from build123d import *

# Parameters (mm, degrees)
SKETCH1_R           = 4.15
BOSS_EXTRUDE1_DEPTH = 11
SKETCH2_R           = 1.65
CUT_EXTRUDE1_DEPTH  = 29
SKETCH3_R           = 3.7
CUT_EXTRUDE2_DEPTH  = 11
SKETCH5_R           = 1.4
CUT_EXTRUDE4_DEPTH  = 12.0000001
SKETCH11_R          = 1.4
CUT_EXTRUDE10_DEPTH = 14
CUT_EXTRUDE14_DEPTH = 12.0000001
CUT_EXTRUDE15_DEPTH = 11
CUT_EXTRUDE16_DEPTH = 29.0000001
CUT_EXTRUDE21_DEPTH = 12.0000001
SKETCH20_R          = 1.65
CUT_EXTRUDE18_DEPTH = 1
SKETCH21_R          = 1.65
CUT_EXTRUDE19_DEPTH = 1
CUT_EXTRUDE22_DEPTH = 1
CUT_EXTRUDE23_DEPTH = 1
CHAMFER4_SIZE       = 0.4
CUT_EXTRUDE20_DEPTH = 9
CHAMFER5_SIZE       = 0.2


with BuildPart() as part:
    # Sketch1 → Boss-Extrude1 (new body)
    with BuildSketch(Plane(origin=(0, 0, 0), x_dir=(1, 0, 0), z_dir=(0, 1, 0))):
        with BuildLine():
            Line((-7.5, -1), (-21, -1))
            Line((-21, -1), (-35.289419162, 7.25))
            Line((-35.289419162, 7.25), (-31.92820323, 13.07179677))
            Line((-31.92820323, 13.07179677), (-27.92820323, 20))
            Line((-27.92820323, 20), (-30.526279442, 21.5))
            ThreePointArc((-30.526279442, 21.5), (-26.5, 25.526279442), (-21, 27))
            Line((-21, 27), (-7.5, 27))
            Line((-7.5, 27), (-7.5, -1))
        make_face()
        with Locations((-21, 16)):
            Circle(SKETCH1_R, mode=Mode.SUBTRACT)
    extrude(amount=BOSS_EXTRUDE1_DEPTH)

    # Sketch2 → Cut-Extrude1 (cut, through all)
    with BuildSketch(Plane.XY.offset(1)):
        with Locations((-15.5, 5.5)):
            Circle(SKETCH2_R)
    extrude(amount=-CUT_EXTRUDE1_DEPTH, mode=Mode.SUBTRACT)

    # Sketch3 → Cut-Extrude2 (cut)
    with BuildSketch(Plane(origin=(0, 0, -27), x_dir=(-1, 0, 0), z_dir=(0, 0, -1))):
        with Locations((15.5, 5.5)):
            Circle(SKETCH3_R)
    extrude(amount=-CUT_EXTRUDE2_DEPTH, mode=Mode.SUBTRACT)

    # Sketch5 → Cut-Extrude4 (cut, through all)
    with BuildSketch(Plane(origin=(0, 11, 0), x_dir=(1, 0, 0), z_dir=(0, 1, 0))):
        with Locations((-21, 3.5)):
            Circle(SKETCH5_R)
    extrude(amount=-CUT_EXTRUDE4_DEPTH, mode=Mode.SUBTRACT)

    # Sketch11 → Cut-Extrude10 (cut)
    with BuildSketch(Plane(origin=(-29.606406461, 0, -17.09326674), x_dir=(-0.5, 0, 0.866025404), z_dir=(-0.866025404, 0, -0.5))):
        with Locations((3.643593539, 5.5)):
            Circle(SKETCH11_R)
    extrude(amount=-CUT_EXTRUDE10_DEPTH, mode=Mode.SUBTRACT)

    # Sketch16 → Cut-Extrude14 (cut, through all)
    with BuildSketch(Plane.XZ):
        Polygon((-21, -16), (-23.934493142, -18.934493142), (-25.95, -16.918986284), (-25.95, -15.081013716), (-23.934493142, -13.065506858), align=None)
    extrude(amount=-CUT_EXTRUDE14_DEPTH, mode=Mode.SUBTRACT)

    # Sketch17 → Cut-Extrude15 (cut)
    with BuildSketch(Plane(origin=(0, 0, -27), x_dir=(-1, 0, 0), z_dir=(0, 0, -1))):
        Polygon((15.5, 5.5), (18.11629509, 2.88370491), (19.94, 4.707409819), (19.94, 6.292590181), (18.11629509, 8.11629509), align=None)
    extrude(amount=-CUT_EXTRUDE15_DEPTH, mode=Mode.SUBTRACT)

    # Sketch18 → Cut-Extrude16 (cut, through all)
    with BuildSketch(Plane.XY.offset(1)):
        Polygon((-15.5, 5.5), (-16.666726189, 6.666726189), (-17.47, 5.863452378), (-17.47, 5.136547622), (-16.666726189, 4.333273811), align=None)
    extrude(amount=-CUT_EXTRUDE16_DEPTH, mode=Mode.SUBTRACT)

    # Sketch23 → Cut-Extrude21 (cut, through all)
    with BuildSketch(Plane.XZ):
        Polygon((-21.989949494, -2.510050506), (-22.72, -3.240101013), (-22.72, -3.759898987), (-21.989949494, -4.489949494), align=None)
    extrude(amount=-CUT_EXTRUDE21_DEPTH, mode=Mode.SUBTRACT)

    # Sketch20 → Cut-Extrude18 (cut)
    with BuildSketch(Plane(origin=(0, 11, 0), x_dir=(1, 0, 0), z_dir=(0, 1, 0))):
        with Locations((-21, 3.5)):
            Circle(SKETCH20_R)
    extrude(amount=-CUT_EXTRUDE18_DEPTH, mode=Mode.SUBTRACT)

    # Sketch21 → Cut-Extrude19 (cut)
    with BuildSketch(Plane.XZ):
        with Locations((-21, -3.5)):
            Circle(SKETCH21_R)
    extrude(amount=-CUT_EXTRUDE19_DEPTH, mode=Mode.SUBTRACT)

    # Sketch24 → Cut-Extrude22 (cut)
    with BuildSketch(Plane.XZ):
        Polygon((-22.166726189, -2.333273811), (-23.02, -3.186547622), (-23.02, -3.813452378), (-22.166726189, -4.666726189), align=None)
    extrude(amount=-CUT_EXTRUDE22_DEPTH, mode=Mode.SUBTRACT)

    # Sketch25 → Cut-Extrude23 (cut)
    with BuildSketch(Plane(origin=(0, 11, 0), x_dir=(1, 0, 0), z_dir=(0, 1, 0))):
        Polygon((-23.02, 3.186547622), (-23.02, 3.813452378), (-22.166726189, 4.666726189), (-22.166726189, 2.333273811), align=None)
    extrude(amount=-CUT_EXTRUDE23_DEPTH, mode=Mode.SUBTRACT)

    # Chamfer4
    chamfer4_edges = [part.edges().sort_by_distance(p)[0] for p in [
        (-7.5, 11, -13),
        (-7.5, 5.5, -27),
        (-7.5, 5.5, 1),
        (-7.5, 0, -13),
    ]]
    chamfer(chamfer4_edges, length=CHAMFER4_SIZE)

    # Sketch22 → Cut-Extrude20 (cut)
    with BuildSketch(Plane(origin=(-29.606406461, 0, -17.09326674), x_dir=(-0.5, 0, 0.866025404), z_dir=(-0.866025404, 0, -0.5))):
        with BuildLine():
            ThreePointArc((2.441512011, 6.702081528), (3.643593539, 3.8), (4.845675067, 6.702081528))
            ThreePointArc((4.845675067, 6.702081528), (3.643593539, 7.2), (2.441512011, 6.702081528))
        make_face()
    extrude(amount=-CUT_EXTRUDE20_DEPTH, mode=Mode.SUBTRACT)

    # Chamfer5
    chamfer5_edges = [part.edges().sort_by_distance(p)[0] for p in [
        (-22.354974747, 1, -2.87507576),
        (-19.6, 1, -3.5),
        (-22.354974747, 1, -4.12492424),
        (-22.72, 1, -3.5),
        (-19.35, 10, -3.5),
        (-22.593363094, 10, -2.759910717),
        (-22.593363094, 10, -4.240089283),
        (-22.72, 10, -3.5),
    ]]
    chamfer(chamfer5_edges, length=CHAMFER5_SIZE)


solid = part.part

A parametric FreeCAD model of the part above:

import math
import FreeCAD as App
import Part
import Sketcher
from FreeCAD import Vector
Q = App.Units.Quantity


def edges_at(feature, points):
    """Names of the edges that pass closest to the given points."""
    edges = feature.Shape.Edges
    near = lambda p: min(range(len(edges)), key=lambda i: edges[i].distToShape(Part.Vertex(*p))[0])
    return sorted({f"Edge{near(p) + 1}" for p in points})

doc = App.newDocument("Part")
body = doc.addObject("PartDesign::Body", "Body")

# Sketch on XZ plane
sketch1 = doc.addObject("Sketcher::SketchObject", "Sketch")
body.addObject(sketch1)
sketch1.AttachmentSupport = (doc.XZ_Plane, [""])
sketch1.MapMode = "FlatFace"
sketch1.addGeometry([
    Part.LineSegment(Vector(-21, 1, 0), Vector(-7.5, 1, 0)),  # 0
    Part.LineSegment(Vector(-7.5, 1, 0), Vector(-7.5, -27, 0)),  # 1
    Part.LineSegment(Vector(-7.5, -27, 0), Vector(-21, -27, 0)),  # 2
    Part.ArcOfCircle(Part.Circle(Vector(-21, -16, 0), Vector(0, 0, 1), 11), math.radians(-150), math.radians(-90)),  # 3
    Part.LineSegment(Vector(-30.5, -21.5, 0), Vector(-27.9, -20, 0)),  # 4
    Part.LineSegment(Vector(-27.9, -20, 0), Vector(-31.9, -13.1, 0)),  # 5
    Part.LineSegment(Vector(-31.9, -13.1, 0), Vector(-35.3, -7.2, 0)),  # 6
    Part.LineSegment(Vector(-35.3, -7.2, 0), Vector(-21, 1, 0)),  # 7
    Part.Circle(Vector(-21, -16, 0), Vector(0, 0, 1), 4.2),  # 8
], False)
sketch1.addConstraint([
    Sketcher.Constraint("Coincident", 0, 2, 1, 1),
    Sketcher.Constraint("Coincident", 1, 2, 2, 1),
    Sketcher.Constraint("Tangent", 2, 2, 3, 2),
    Sketcher.Constraint("Coincident", 3, 1, 4, 1),
    Sketcher.Constraint("Coincident", 4, 2, 5, 1),
    Sketcher.Constraint("Coincident", 5, 2, 6, 1),
    Sketcher.Constraint("Coincident", 6, 2, 7, 1),
    Sketcher.Constraint("Coincident", 7, 2, 0, 1),
    Sketcher.Constraint("Horizontal", 0),
    Sketcher.Constraint("Vertical", 1),
    Sketcher.Constraint("Horizontal", 2),
    Sketcher.Constraint("Coincident", 8, 3, 3, 3),
    Sketcher.Constraint("Perpendicular", 4, 5),
    Sketcher.Constraint("Parallel", 5, 6),
    Sketcher.Constraint("Perpendicular", 6, 7),
    Sketcher.Constraint("Vertical", 2, 2, 7, 2),
    Sketcher.Constraint("Radius", 3, Q("11 mm")),
    Sketcher.Constraint("Diameter", 8, Q("8.3 mm")),
    Sketcher.Constraint("DistanceY", 1, 2, 1, 1, Q("28 mm")),
    Sketcher.Constraint("Angle", 4, Q("30 deg")),
    Sketcher.Constraint("Distance", 4, Q("3 mm")),
    Sketcher.Constraint("Distance", 5, Q("8 mm")),
    Sketcher.Constraint("DistanceX", 0, 1, 0, 2, Q("13.5 mm")),
    Sketcher.Constraint("DistanceX", 3, 3, -1, 1, Q("21 mm")),
    Sketcher.Constraint("DistanceY", 3, 3, -1, 1, Q("16 mm")),
    Sketcher.Constraint("DistanceY", 4, 2, -1, 1, Q("20 mm")),
])
pad1 = doc.addObject("PartDesign::Pad", "Pad")
body.addObject(pad1)
pad1.Profile = sketch1
pad1.Length = 11
pad1.Reversed = True

# Sketch on XY plane
sketch2 = doc.addObject("Sketcher::SketchObject", "Sketch001")
body.addObject(sketch2)
sketch2.AttachmentSupport = (doc.XY_Plane, [""])
sketch2.MapMode = "FlatFace"
sketch2.AttachmentOffset = App.Placement(Vector(0, 0, 1), App.Rotation())
sketch2.addGeometry(Part.Circle(Vector(-15.5, 5.5, 0), Vector(0, 0, 1), 1.6), False)
sketch2.addConstraint([
    Sketcher.Constraint("Diameter", 0, Q("3.3 mm")),
    Sketcher.Constraint("DistanceX", 0, 3, -1, 1, Q("15.5 mm")),
    Sketcher.Constraint("DistanceY", -1, 1, 0, 3, Q("5.5 mm")),
])
pocket1 = doc.addObject("PartDesign::Pocket", "Pocket")
body.addObject(pocket1)
pocket1.Profile = sketch2
pocket1.Type = "ThroughAll"

# Sketch on XY plane
sketch3 = doc.addObject("Sketcher::SketchObject", "Sketch002")
body.addObject(sketch3)
sketch3.AttachmentSupport = (doc.XY_Plane, [""])
sketch3.MapMode = "FlatFace"
sketch3.AttachmentOffset = App.Placement(Vector(0, 0, -27), App.Rotation())
sketch3.addGeometry(Part.Circle(Vector(-15.5, 5.5, 0), Vector(0, 0, 1), 3.7), False)
sketch3.addConstraint([
    Sketcher.Constraint("Diameter", 0, Q("7.4 mm")),
    Sketcher.Constraint("DistanceX", 0, 3, -1, 1, Q("15.5 mm")),
    Sketcher.Constraint("DistanceY", -1, 1, 0, 3, Q("5.5 mm")),
])
pocket2 = doc.addObject("PartDesign::Pocket", "Pocket001")
body.addObject(pocket2)
pocket2.Profile = sketch3
pocket2.Length = 11
pocket2.Reversed = True

# Sketch on XZ plane
sketch4 = doc.addObject("Sketcher::SketchObject", "Sketch003")
body.addObject(sketch4)
sketch4.AttachmentSupport = (doc.XZ_Plane, [""])
sketch4.MapMode = "FlatFace"
sketch4.AttachmentOffset = App.Placement(Vector(0, 0, -11), App.Rotation())
sketch4.addGeometry(Part.Circle(Vector(-21, -3.5, 0), Vector(0, 0, 1), 1.4), False)
sketch4.addConstraint([
    Sketcher.Constraint("Diameter", 0, Q("2.8 mm")),
    Sketcher.Constraint("DistanceX", 0, 3, -1, 1, Q("21 mm")),
    Sketcher.Constraint("DistanceY", 0, 3, -1, 1, Q("3.5 mm")),
])
pocket3 = doc.addObject("PartDesign::Pocket", "Pocket002")
body.addObject(pocket3)
pocket3.Profile = sketch4
pocket3.Type = "ThroughAll"
pocket3.Reversed = True

# Sketch on an angled plane
sketch5 = doc.addObject("Sketcher::SketchObject", "Sketch004")
body.addObject(sketch5)
sketch5.Placement = App.Placement(Vector(-29.606406, 0, -17.093267), App.Rotation(Vector(-0.5, 0, 0.866025404), Vector(0, 1, 0), Vector(-0.866025404, 0, -0.5), "ZXY"))
sketch5.addGeometry(Part.Circle(Vector(3.6, 5.5, 0), Vector(0, 0, 1), 1.4), False)
sketch5.addConstraint([
    Sketcher.Constraint("Diameter", 0, Q("2.8 mm")),
    Sketcher.Constraint("DistanceY", -1, 1, 0, 3, Q("5.5 mm")),
    Sketcher.Constraint("DistanceX", -1, 1, 0, 3, Q("3.643594 mm")),
])
pocket4 = doc.addObject("PartDesign::Pocket", "Pocket003")
body.addObject(pocket4)
pocket4.Profile = sketch5
pocket4.Length = 14

# Sketch on XZ plane
sketch6 = doc.addObject("Sketcher::SketchObject", "Sketch005")
body.addObject(sketch6)
sketch6.AttachmentSupport = (doc.XZ_Plane, [""])
sketch6.MapMode = "FlatFace"
sketch6.addGeometry([
    Part.LineSegment(Vector(-23.9, -18.9, 0), Vector(-21, -16, 0)),  # 0
    Part.LineSegment(Vector(-21, -16, 0), Vector(-23.9, -13.1, 0)),  # 1
    Part.LineSegment(Vector(-23.9, -13.1, 0), Vector(-25.9, -15.1, 0)),  # 2
    Part.LineSegment(Vector(-25.9, -15.1, 0), Vector(-25.9, -16.9, 0)),  # 3
    Part.LineSegment(Vector(-25.9, -16.9, 0), Vector(-23.9, -18.9, 0)),  # 4
], False)
sketch6.addConstraint([
    Sketcher.Constraint("Coincident", 0, 2, 1, 1),
    Sketcher.Constraint("Coincident", 1, 2, 2, 1),
    Sketcher.Constraint("Coincident", 2, 2, 3, 1),
    Sketcher.Constraint("Coincident", 3, 2, 4, 1),
    Sketcher.Constraint("Coincident", 4, 2, 0, 1),
    Sketcher.Constraint("Vertical", 3),
    Sketcher.Constraint("Perpendicular", 0, 1),
    Sketcher.Constraint("Perpendicular", 1, 2),
    Sketcher.Constraint("Perpendicular", 2, 4),
    Sketcher.Constraint("Vertical", 1, 2, 4, 2),
    Sketcher.Constraint("Equal", 0, 1),
    Sketcher.Constraint("DistanceX", 0, 2, -1, 1, Q("21 mm")),
    Sketcher.Constraint("DistanceY", 0, 2, -1, 1, Q("16 mm")),
    Sketcher.Constraint("Distance", 0, Q("4.15 mm")),
    Sketcher.Constraint("DistanceX", 2, 2, -1, 1, Q("25.95 mm")),
])
pocket5 = doc.addObject("PartDesign::Pocket", "Pocket004")
body.addObject(pocket5)
pocket5.Profile = sketch6
pocket5.Type = "ThroughAll"

# Sketch on XY plane
sketch7 = doc.addObject("Sketcher::SketchObject", "Sketch006")
body.addObject(sketch7)
sketch7.AttachmentSupport = (doc.XY_Plane, [""])
sketch7.MapMode = "FlatFace"
sketch7.AttachmentOffset = App.Placement(Vector(0, 0, -27), App.Rotation())
sketch7.addGeometry([
    Part.LineSegment(Vector(-15.5, 5.5, 0), Vector(-18.1, 2.9, 0)),  # 0
    Part.LineSegment(Vector(-18.1, 2.9, 0), Vector(-19.9, 4.7, 0)),  # 1
    Part.LineSegment(Vector(-19.9, 4.7, 0), Vector(-19.9, 6.3, 0)),  # 2
    Part.LineSegment(Vector(-19.9, 6.3, 0), Vector(-18.1, 8.1, 0)),  # 3
    Part.LineSegment(Vector(-18.1, 8.1, 0), Vector(-15.5, 5.5, 0)),  # 4
], False)
sketch7.addConstraint([
    Sketcher.Constraint("Coincident", 0, 2, 1, 1),
    Sketcher.Constraint("Coincident", 1, 2, 2, 1),
    Sketcher.Constraint("Coincident", 2, 2, 3, 1),
    Sketcher.Constraint("Coincident", 3, 2, 4, 1),
    Sketcher.Constraint("Coincident", 4, 2, 0, 1),
    Sketcher.Constraint("Vertical", 2),
    Sketcher.Constraint("Perpendicular", 0, 1),
    Sketcher.Constraint("Perpendicular", 1, 3),
    Sketcher.Constraint("Perpendicular", 3, 4),
    Sketcher.Constraint("Vertical", 0, 2, 3, 2),
    Sketcher.Constraint("Equal", 1, 3),
    Sketcher.Constraint("Distance", 0, Q("3.7 mm")),
    Sketcher.Constraint("DistanceX", 4, 2, -1, 1, Q("15.5 mm")),
    Sketcher.Constraint("DistanceY", -1, 1, 4, 2, Q("5.5 mm")),
    Sketcher.Constraint("DistanceX", 1, 2, -1, 1, Q("19.94 mm")),
])
pocket6 = doc.addObject("PartDesign::Pocket", "Pocket005")
body.addObject(pocket6)
pocket6.Profile = sketch7
pocket6.Length = 11
pocket6.Reversed = True

# Sketch on XY plane
sketch8 = doc.addObject("Sketcher::SketchObject", "Sketch007")
body.addObject(sketch8)
sketch8.AttachmentSupport = (doc.XY_Plane, [""])
sketch8.MapMode = "FlatFace"
sketch8.AttachmentOffset = App.Placement(Vector(0, 0, 1), App.Rotation())
sketch8.addGeometry([
    Part.LineSegment(Vector(-15.5, 5.5, 0), Vector(-16.7, 6.7, 0)),  # 0
    Part.LineSegment(Vector(-16.7, 6.7, 0), Vector(-17.5, 5.9, 0)),  # 1
    Part.LineSegment(Vector(-17.5, 5.9, 0), Vector(-17.5, 5.1, 0)),  # 2
    Part.LineSegment(Vector(-17.5, 5.1, 0), Vector(-16.7, 4.3, 0)),  # 3
    Part.LineSegment(Vector(-16.7, 4.3, 0), Vector(-15.5, 5.5, 0)),  # 4
], False)
sketch8.addConstraint([
    Sketcher.Constraint("Coincident", 0, 2, 1, 1),
    Sketcher.Constraint("Coincident", 1, 2, 2, 1),
    Sketcher.Constraint("Coincident", 2, 2, 3, 1),
    Sketcher.Constraint("Coincident", 3, 2, 4, 1),
    Sketcher.Constraint("Coincident", 4, 2, 0, 1),
    Sketcher.Constraint("Vertical", 2),
    Sketcher.Constraint("Perpendicular", 0, 1),
    Sketcher.Constraint("Perpendicular", 1, 3),
    Sketcher.Constraint("Perpendicular", 3, 4),
    Sketcher.Constraint("Vertical", 0, 2, 3, 2),
    Sketcher.Constraint("Equal", 1, 3),
    Sketcher.Constraint("DistanceX", 4, 2, -1, 1, Q("15.5 mm")),
    Sketcher.Constraint("DistanceY", -1, 1, 4, 2, Q("5.5 mm")),
    Sketcher.Constraint("Distance", 0, Q("1.65 mm")),
    Sketcher.Constraint("DistanceX", 1, 2, -1, 1, Q("17.47 mm")),
])
pocket7 = doc.addObject("PartDesign::Pocket", "Pocket006")
body.addObject(pocket7)
pocket7.Profile = sketch8
pocket7.Type = "ThroughAll"

# Sketch on XZ plane
sketch9 = doc.addObject("Sketcher::SketchObject", "Sketch008")
body.addObject(sketch9)
sketch9.AttachmentSupport = (doc.XZ_Plane, [""])
sketch9.MapMode = "FlatFace"
sketch9.addGeometry([
    Part.LineSegment(Vector(-22, -2.5, 0), Vector(-22.7, -3.2, 0)),
    Part.LineSegment(Vector(-22.7, -3.2, 0), Vector(-22.7, -3.8, 0)),
    Part.LineSegment(Vector(-22.7, -3.8, 0), Vector(-22, -4.5, 0)),
    Part.LineSegment(Vector(-22, -4.5, 0), Vector(-22, -2.5, 0)),
], False)
sketch9.addConstraint([
    Sketcher.Constraint("Coincident", 0, 2, 1, 1),
    Sketcher.Constraint("Coincident", 1, 2, 2, 1),
    Sketcher.Constraint("Coincident", 2, 2, 3, 1),
    Sketcher.Constraint("Coincident", 3, 2, 0, 1),
    Sketcher.Constraint("Vertical", 1),
    Sketcher.Constraint("Vertical", 3),
    Sketcher.Constraint("Perpendicular", 0, 2),
    Sketcher.Constraint("Equal", 0, 2),
    Sketcher.Constraint("DistanceX", 0, 2, -1, 1, Q("22.72 mm")),
    Sketcher.Constraint("DistanceY", 3, 1, 3, 2, Q("1.979899 mm")),
    Sketcher.Constraint("DistanceY", 0, 2, -1, 1, Q("3.240101 mm")),
    Sketcher.Constraint("DistanceY", 1, 2, -1, 1, Q("3.759899 mm")),
])
pocket8 = doc.addObject("PartDesign::Pocket", "Pocket007")
body.addObject(pocket8)
pocket8.Profile = sketch9
pocket8.Type = "ThroughAll"

# Sketch on XZ plane
sketch10 = doc.addObject("Sketcher::SketchObject", "Sketch009")
body.addObject(sketch10)
sketch10.AttachmentSupport = (doc.XZ_Plane, [""])
sketch10.MapMode = "FlatFace"
sketch10.AttachmentOffset = App.Placement(Vector(0, 0, -11), App.Rotation())
sketch10.addGeometry(Part.Circle(Vector(-21, -3.5, 0), Vector(0, 0, 1), 1.6), False)
sketch10.addConstraint([
    Sketcher.Constraint("Diameter", 0, Q("3.3 mm")),
    Sketcher.Constraint("DistanceX", 0, 3, -1, 1, Q("21 mm")),
    Sketcher.Constraint("DistanceY", 0, 3, -1, 1, Q("3.5 mm")),
])
pocket9 = doc.addObject("PartDesign::Pocket", "Pocket008")
body.addObject(pocket9)
pocket9.Profile = sketch10
pocket9.Length = 1
pocket9.Reversed = True

# Sketch on XZ plane
sketch11 = doc.addObject("Sketcher::SketchObject", "Sketch010")
body.addObject(sketch11)
sketch11.AttachmentSupport = (doc.XZ_Plane, [""])
sketch11.MapMode = "FlatFace"
sketch11.addGeometry(Part.Circle(Vector(-21, -3.5, 0), Vector(0, 0, 1), 1.6), False)
sketch11.addConstraint([
    Sketcher.Constraint("Diameter", 0, Q("3.3 mm")),
    Sketcher.Constraint("DistanceX", 0, 3, -1, 1, Q("21 mm")),
    Sketcher.Constraint("DistanceY", 0, 3, -1, 1, Q("3.5 mm")),
])
pocket10 = doc.addObject("PartDesign::Pocket", "Pocket009")
body.addObject(pocket10)
pocket10.Profile = sketch11
pocket10.Length = 1

# Sketch on XZ plane
sketch12 = doc.addObject("Sketcher::SketchObject", "Sketch011")
body.addObject(sketch12)
sketch12.AttachmentSupport = (doc.XZ_Plane, [""])
sketch12.MapMode = "FlatFace"
sketch12.addGeometry([
    Part.LineSegment(Vector(-22.2, -2.3, 0), Vector(-23, -3.2, 0)),
    Part.LineSegment(Vector(-23, -3.2, 0), Vector(-23, -3.8, 0)),
    Part.LineSegment(Vector(-23, -3.8, 0), Vector(-22.2, -4.7, 0)),
    Part.LineSegment(Vector(-22.2, -4.7, 0), Vector(-22.2, -2.3, 0)),
], False)
sketch12.addConstraint([
    Sketcher.Constraint("Coincident", 0, 2, 1, 1),
    Sketcher.Constraint("Coincident", 1, 2, 2, 1),
    Sketcher.Constraint("Coincident", 2, 2, 3, 1),
    Sketcher.Constraint("Coincident", 3, 2, 0, 1),
    Sketcher.Constraint("Vertical", 1),
    Sketcher.Constraint("Vertical", 3),
    Sketcher.Constraint("Perpendicular", 0, 2),
    Sketcher.Constraint("Equal", 0, 2),
    Sketcher.Constraint("DistanceX", 0, 2, -1, 1, Q("23.02 mm")),
    Sketcher.Constraint("Distance", 0, Q("1.206711 mm")),
    Sketcher.Constraint("DistanceY", 1, 2, 1, 1, Q("0.626905 mm")),
    Sketcher.Constraint("DistanceY", 0, 2, -1, 1, Q("3.186548 mm")),
])
pocket11 = doc.addObject("PartDesign::Pocket", "Pocket010")
body.addObject(pocket11)
pocket11.Profile = sketch12
pocket11.Length = 1

# Sketch on XZ plane
sketch13 = doc.addObject("Sketcher::SketchObject", "Sketch012")
body.addObject(sketch13)
sketch13.AttachmentSupport = (doc.XZ_Plane, [""])
sketch13.MapMode = "FlatFace"
sketch13.AttachmentOffset = App.Placement(Vector(0, 0, -11), App.Rotation())
sketch13.addGeometry([
    Part.LineSegment(Vector(-23, -3.8, 0), Vector(-23, -3.2, 0)),
    Part.LineSegment(Vector(-23, -3.2, 0), Vector(-22.2, -2.3, 0)),
    Part.LineSegment(Vector(-22.2, -2.3, 0), Vector(-22.2, -4.7, 0)),
    Part.LineSegment(Vector(-22.2, -4.7, 0), Vector(-23, -3.8, 0)),
], False)
sketch13.addConstraint([
    Sketcher.Constraint("Coincident", 0, 2, 1, 1),
    Sketcher.Constraint("Coincident", 1, 2, 2, 1),
    Sketcher.Constraint("Coincident", 2, 2, 3, 1),
    Sketcher.Constraint("Coincident", 3, 2, 0, 1),
    Sketcher.Constraint("Vertical", 0),
    Sketcher.Constraint("Vertical", 2),
    Sketcher.Constraint("Perpendicular", 1, 3),
    Sketcher.Constraint("Equal", 1, 3),
    Sketcher.Constraint("DistanceX", 0, 2, -1, 1, Q("23.02 mm")),
    Sketcher.Constraint("Distance", 1, Q("1.206711 mm")),
    Sketcher.Constraint("DistanceY", 0, 1, 0, 2, Q("0.626905 mm")),
    Sketcher.Constraint("DistanceY", 0, 2, -1, 1, Q("3.186548 mm")),
])
pocket12 = doc.addObject("PartDesign::Pocket", "Pocket011")
body.addObject(pocket12)
pocket12.Profile = sketch13
pocket12.Length = 1
pocket12.Reversed = True
doc.recompute()

chamfer = doc.addObject("PartDesign::Chamfer", "Chamfer")
body.addObject(chamfer)
chamfer.Base = (pocket12, edges_at(pocket12, [
    (-7.5, 11, -13),
    (-7.5, 5.5, -27),
    (-7.5, 5.5, 1),
    (-7.5, 0, -13),
]))
chamfer.Size = 0.4

# Sketch on an angled plane
sketch14 = doc.addObject("Sketcher::SketchObject", "Sketch013")
body.addObject(sketch14)
sketch14.Placement = App.Placement(Vector(-29.606406, 0, -17.093267), App.Rotation(Vector(-0.5, 0, 0.866025404), Vector(0, 1, 0), Vector(-0.866025404, 0, -0.5), "ZXY"))
sketch14.addGeometry([
    Part.ArcOfCircle(Part.Circle(Vector(3.6, 5.5, 0), Vector(0, 0, 1), 1.7), math.radians(135), math.radians(405)),
    Part.ArcOfCircle(Part.Circle(Vector(3.6, 5.5, 0), Vector(0, 0, 1), 1.7), math.radians(45), math.radians(135)),
], False)
sketch14.addConstraint([
    Sketcher.Constraint("Tangent", 0, 1, 1, 2),
    Sketcher.Constraint("Coincident", 1, 1, 0, 2),
    Sketcher.Constraint("Horizontal", 0, 1, 1, 1),
    Sketcher.Constraint("Radius", 0, Q("1.7 mm")),
    Sketcher.Constraint("DistanceY", -1, 1, 0, 3, Q("5.5 mm")),
    Sketcher.Constraint("DistanceY", -1, 1, 0, 1, Q("6.702082 mm")),
    Sketcher.Constraint("DistanceX", -1, 1, 0, 3, Q("3.643594 mm")),
])
pocket13 = doc.addObject("PartDesign::Pocket", "Pocket012")
body.addObject(pocket13)
pocket13.Profile = sketch14
pocket13.Length = 9
doc.recompute()

chamfer2 = doc.addObject("PartDesign::Chamfer", "Chamfer001")
body.addObject(chamfer2)
chamfer2.Base = (pocket13, edges_at(pocket13, [
    (-22.355, 1, -2.875),
    (-19.6, 1, -3.5),
    (-22.355, 1, -4.125),
    (-22.72, 1, -3.5),
    (-19.35, 10, -3.5),
    (-22.593, 10, -2.76),
    (-22.593, 10, -4.24),
    (-22.72, 10, -3.5),
]))
chamfer2.Size = 0.2

doc.recompute()
